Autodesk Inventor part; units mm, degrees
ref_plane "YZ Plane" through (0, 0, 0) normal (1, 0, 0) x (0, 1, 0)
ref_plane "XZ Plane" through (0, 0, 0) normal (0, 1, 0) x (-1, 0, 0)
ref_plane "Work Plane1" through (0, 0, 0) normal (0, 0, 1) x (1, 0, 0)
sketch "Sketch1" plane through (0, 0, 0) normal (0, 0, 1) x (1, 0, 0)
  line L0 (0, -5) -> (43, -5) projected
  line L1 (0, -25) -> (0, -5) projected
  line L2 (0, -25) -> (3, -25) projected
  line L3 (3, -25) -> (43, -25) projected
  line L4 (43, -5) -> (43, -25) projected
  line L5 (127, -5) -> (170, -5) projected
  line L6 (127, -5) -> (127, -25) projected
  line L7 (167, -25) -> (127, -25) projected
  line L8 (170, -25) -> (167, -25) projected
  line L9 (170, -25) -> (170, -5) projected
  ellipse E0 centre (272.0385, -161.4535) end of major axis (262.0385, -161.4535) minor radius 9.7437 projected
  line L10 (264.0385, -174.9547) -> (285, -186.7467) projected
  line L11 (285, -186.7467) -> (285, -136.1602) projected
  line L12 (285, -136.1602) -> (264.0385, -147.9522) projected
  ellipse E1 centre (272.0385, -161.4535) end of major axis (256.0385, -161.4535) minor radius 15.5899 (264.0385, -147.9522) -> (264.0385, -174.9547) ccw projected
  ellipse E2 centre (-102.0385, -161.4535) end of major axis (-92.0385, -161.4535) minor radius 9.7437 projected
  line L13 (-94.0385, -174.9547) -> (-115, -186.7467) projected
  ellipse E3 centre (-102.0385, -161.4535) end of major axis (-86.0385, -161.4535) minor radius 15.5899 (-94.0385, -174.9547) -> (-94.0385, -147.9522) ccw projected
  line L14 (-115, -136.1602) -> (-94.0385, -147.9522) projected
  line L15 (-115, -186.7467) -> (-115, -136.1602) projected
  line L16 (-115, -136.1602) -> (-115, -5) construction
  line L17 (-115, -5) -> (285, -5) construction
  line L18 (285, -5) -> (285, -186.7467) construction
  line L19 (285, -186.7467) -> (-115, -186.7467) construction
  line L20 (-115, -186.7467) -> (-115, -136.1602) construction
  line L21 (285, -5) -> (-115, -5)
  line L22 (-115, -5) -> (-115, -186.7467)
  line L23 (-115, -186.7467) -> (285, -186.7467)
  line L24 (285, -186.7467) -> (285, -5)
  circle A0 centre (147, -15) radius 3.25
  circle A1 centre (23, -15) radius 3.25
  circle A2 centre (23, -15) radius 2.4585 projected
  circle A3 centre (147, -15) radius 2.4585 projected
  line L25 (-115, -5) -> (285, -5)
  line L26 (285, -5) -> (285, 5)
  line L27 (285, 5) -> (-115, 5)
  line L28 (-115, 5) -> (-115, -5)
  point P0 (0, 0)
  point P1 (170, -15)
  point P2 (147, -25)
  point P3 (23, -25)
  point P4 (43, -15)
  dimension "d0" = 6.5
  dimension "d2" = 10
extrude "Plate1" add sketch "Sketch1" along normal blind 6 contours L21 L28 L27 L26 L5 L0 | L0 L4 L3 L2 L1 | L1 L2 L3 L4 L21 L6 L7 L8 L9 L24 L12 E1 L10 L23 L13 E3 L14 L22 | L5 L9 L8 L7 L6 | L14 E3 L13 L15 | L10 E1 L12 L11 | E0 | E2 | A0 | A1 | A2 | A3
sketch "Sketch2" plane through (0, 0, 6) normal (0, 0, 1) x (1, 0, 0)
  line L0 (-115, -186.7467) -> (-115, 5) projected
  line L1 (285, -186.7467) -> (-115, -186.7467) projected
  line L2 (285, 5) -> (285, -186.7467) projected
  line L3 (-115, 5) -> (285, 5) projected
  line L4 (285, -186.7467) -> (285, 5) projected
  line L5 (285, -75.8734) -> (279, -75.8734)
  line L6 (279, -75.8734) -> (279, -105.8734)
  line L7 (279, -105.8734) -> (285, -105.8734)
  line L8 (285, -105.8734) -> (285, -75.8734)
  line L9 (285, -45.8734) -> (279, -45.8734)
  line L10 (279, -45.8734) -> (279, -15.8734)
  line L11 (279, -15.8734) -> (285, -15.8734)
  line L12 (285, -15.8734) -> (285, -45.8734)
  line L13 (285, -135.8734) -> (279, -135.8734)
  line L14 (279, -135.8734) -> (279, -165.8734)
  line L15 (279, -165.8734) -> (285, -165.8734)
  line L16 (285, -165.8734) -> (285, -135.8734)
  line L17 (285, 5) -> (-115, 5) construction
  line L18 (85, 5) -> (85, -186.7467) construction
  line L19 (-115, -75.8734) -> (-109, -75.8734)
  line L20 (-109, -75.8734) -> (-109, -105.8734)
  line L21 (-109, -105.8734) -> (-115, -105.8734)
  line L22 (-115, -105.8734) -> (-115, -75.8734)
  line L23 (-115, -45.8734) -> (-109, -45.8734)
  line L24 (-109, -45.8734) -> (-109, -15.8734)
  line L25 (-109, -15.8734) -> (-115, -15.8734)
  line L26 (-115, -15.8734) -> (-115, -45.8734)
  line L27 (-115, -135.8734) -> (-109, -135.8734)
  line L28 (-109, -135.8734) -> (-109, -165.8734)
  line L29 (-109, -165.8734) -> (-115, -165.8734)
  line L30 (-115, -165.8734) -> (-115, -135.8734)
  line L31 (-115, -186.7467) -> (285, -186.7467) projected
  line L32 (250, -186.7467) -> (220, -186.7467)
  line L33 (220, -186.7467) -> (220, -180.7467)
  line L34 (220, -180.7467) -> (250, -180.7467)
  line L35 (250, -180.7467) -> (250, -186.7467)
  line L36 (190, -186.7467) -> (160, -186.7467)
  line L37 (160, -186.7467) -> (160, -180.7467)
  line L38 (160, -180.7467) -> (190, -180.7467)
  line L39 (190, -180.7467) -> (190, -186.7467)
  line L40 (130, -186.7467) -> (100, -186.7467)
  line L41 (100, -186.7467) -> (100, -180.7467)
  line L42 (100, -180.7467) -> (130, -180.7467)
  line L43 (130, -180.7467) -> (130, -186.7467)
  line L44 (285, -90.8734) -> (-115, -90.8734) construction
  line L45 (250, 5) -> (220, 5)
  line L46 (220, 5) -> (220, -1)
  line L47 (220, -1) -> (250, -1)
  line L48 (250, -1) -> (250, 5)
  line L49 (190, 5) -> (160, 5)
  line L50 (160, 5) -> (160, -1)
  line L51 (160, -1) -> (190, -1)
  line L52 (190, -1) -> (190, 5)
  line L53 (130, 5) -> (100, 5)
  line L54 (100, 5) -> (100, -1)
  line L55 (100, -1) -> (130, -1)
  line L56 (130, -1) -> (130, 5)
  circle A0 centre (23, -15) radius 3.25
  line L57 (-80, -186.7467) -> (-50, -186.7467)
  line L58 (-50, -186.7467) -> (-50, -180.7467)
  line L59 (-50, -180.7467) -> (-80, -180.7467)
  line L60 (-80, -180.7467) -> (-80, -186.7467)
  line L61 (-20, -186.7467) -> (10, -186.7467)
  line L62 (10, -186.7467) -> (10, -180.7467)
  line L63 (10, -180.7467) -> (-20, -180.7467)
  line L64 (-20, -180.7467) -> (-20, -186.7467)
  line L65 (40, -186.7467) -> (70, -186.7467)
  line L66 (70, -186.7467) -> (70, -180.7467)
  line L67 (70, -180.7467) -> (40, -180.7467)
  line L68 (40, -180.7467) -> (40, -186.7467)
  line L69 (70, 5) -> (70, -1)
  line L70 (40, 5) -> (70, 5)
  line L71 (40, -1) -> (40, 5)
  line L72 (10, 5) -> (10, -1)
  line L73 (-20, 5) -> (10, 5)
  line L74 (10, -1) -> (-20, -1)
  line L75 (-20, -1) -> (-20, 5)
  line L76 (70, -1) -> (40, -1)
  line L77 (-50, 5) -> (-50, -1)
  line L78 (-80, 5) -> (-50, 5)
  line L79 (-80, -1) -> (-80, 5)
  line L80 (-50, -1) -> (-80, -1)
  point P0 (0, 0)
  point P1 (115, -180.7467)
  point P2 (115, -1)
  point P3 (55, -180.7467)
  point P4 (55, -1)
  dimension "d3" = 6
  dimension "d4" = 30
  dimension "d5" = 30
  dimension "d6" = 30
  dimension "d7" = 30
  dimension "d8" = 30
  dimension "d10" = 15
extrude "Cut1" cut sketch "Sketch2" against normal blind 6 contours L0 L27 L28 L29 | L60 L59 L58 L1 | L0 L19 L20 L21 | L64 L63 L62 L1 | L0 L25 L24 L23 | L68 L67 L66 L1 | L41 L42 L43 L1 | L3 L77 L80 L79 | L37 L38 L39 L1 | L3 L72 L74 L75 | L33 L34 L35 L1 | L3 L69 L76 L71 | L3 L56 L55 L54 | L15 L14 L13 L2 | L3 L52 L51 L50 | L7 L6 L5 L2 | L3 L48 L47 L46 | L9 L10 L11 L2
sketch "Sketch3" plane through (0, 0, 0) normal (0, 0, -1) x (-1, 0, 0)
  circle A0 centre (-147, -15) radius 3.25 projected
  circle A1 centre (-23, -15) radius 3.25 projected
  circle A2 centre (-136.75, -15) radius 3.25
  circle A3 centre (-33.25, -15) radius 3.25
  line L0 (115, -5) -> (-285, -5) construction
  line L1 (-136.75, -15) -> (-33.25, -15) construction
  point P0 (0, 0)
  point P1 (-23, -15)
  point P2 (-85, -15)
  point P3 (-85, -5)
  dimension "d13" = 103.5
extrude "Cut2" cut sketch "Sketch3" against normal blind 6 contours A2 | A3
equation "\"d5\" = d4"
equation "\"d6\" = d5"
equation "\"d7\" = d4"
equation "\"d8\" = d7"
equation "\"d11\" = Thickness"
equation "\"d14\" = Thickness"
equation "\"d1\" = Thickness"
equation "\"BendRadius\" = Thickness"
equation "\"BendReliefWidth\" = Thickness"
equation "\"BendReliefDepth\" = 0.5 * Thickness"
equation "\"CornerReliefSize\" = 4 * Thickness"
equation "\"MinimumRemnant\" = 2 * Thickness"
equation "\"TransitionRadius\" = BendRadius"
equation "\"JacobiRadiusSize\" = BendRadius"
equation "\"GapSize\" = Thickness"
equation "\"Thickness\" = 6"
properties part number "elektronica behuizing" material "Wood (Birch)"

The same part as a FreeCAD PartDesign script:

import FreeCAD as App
import Part
import Sketcher

V = App.Vector


def add_polygon(sketch, points):
    """Adds a closed chain of lines whose ends are joined by coincident constraints."""
    first, n = sketch.GeometryCount, len(points)
    for a, b in zip(points, points[1:] + points[:1]):
        sketch.addGeometry(Part.LineSegment(App.Vector(*a, 0), App.Vector(*b, 0)), False)
    for i in range(n):
        sketch.addConstraint(Sketcher.Constraint("Coincident", first + i, 2, first + (i + 1) % n, 1))

doc = App.newDocument("Part")
body = doc.addObject("PartDesign::Body", "Body")

# Sketch on XY plane
sketch1 = doc.addObject("Sketcher::SketchObject", "Sketch")
body.addObject(sketch1)
sketch1.AttachmentSupport = (doc.XY_Plane, [""])
sketch1.MapMode = "FlatFace"
add_polygon(sketch1, [(-115, 5), (-115, -186.7467), (285, -186.7467), (285, 5)])  # lines 0-3
sketch1.addConstraint(Sketcher.Constraint("Vertical", 0))
sketch1.addConstraint(Sketcher.Constraint("Horizontal", 1))
sketch1.addConstraint(Sketcher.Constraint("Vertical", 2))
sketch1.addConstraint(Sketcher.Constraint("Horizontal", 3))
sketch1.addConstraint(Sketcher.Constraint("DistanceX", 1, 1, 1, 2, 400.0))
sketch1.addConstraint(Sketcher.Constraint("DistanceX", 0, 2, -1, 1, 115.0))
sketch1.addConstraint(Sketcher.Constraint("DistanceY", -1, 1, 2, 2, 5.0))
sketch1.addConstraint(Sketcher.Constraint("DistanceY", 0, 2, 0, 1, 191.7467))
pad1 = doc.addObject("PartDesign::Pad", "Pad")
body.addObject(pad1)
pad1.Profile = sketch1
pad1.Length = 6

# Sketch on XY plane
sketch2 = doc.addObject("Sketcher::SketchObject", "Sketch001")
body.addObject(sketch2)
sketch2.AttachmentSupport = (doc.XY_Plane, [""])
sketch2.MapMode = "FlatFace"
sketch2.AttachmentOffset = App.Placement(V(0, 0, 6), App.Rotation())
add_polygon(sketch2, [(-115, -135.8734), (-115, -165.8734), (-109, -165.8734), (-109, -135.8734)])  # lines 0-3
add_polygon(sketch2, [(-80, -180.7467), (-80, -186.7467), (-50, -186.7467), (-50, -180.7467)])  # lines 4-7
add_polygon(sketch2, [(-115, -75.8734), (-115, -105.8734), (-109, -105.8734), (-109, -75.8734)])  # lines 8-11
add_polygon(sketch2, [(-20, -180.7467), (-20, -186.7467), (10, -186.7467), (10, -180.7467)])  # lines 12-15
add_polygon(sketch2, [(-115, -15.8734), (-115, -45.8734), (-109, -45.8734), (-109, -15.8734)])  # lines 16-19
add_polygon(sketch2, [(40, -180.7467), (40, -186.7467), (70, -186.7467), (70, -180.7467)])  # lines 20-23
add_polygon(sketch2, [(100, -180.7467), (100, -186.7467), (130, -186.7467), (130, -180.7467)])  # lines 24-27
add_polygon(sketch2, [(-50, 5), (-80, 5), (-80, -1), (-50, -1)])  # lines 28-31
add_polygon(sketch2, [(160, -180.7467), (160, -186.7467), (190, -186.7467), (190, -180.7467)])  # lines 32-35
add_polygon(sketch2, [(10, 5), (-20, 5), (-20, -1), (10, -1)])  # lines 36-39
add_polygon(sketch2, [(220, -180.7467), (220, -186.7467), (250, -186.7467), (250, -180.7467)])  # lines 40-43
add_polygon(sketch2, [(70, 5), (40, 5), (40, -1), (70, -1)])  # lines 44-47
add_polygon(sketch2, [(130, 5), (100, 5), (100, -1), (130, -1)])  # lines 48-51
add_polygon(sketch2, [(279, -165.8734), (285, -165.8734), (285, -135.8734), (279, -135.8734)])  # lines 52-55
add_polygon(sketch2, [(190, 5), (160, 5), (160, -1), (190, -1)])  # lines 56-59
add_polygon(sketch2, [(279, -105.8734), (285, -105.8734), (285, -75.8734), (279, -75.8734)])  # lines 60-63
add_polygon(sketch2, [(250, 5), (220, 5), (220, -1), (250, -1)])  # lines 64-67
add_polygon(sketch2, [(279, -45.8734), (285, -45.8734), (285, -15.8734), (279, -15.8734)])  # lines 68-71
sketch2.addConstraint(Sketcher.Constraint("Vertical", 0))
sketch2.addConstraint(Sketcher.Constraint("Horizontal", 1))
sketch2.addConstraint(Sketcher.Constraint("Vertical", 2))
sketch2.addConstraint(Sketcher.Constraint("Horizontal", 3))
sketch2.addConstraint(Sketcher.Constraint("Vertical", 4))
sketch2.addConstraint(Sketcher.Constraint("Horizontal", 5))
sketch2.addConstraint(Sketcher.Constraint("Vertical", 6))
sketch2.addConstraint(Sketcher.Constraint("Horizontal", 7))
sketch2.addConstraint(Sketcher.Constraint("Vertical", 8))
sketch2.addConstraint(Sketcher.Constraint("Horizontal", 9))
sketch2.addConstraint(Sketcher.Constraint("Vertical", 10))
sketch2.addConstraint(Sketcher.Constraint("Horizontal", 11))
sketch2.addConstraint(Sketcher.Constraint("Vertical", 12))
sketch2.addConstraint(Sketcher.Constraint("Horizontal", 13))
sketch2.addConstraint(Sketcher.Constraint("Vertical", 14))
sketch2.addConstraint(Sketcher.Constraint("Horizontal", 15))
sketch2.addConstraint(Sketcher.Constraint("Vertical", 16))
sketch2.addConstraint(Sketcher.Constraint("Horizontal", 17))
sketch2.addConstraint(Sketcher.Constraint("Vertical", 18))
sketch2.addConstraint(Sketcher.Constraint("Horizontal", 19))
sketch2.addConstraint(Sketcher.Constraint("Vertical", 20))
sketch2.addConstraint(Sketcher.Constraint("Horizontal", 21))
sketch2.addConstraint(Sketcher.Constraint("Vertical", 22))
sketch2.addConstraint(Sketcher.Constraint("Horizontal", 23))
sketch2.addConstraint(Sketcher.Constraint("Vertical", 24))
sketch2.addConstraint(Sketcher.Constraint("Horizontal", 25))
sketch2.addConstraint(Sketcher.Constraint("Vertical", 26))
sketch2.addConstraint(Sketcher.Constraint("Horizontal", 27))
sketch2.addConstraint(Sketcher.Constraint("Horizontal", 28))
sketch2.addConstraint(Sketcher.Constraint("Vertical", 29))
sketch2.addConstraint(Sketcher.Constraint("Horizontal", 30))
sketch2.addConstraint(Sketcher.Constraint("Vertical", 31))
sketch2.addConstraint(Sketcher.Constraint("Vertical", 32))
sketch2.addConstraint(Sketcher.Constraint("Horizontal", 33))
sketch2.addConstraint(Sketcher.Constraint("Vertical", 34))
sketch2.addConstraint(Sketcher.Constraint("Horizontal", 35))
sketch2.addConstraint(Sketcher.Constraint("Horizontal", 36))
sketch2.addConstraint(Sketcher.Constraint("Vertical", 37))
sketch2.addConstraint(Sketcher.Constraint("Horizontal", 38))
sketch2.addConstraint(Sketcher.Constraint("Vertical", 39))
sketch2.addConstraint(Sketcher.Constraint("Vertical", 40))
sketch2.addConstraint(Sketcher.Constraint("Horizontal", 41))
sketch2.addConstraint(Sketcher.Constraint("Vertical", 42))
sketch2.addConstraint(Sketcher.Constraint("Horizontal", 43))
sketch2.addConstraint(Sketcher.Constraint("Horizontal", 44))
sketch2.addConstraint(Sketcher.Constraint("Vertical", 45))
sketch2.addConstraint(Sketcher.Constraint("Horizontal", 46))
sketch2.addConstraint(Sketcher.Constraint("Vertical", 47))
sketch2.addConstraint(Sketcher.Constraint("Horizontal", 48))
sketch2.addConstraint(Sketcher.Constraint("Vertical", 49))
sketch2.addConstraint(Sketcher.Constraint("Horizontal", 50))
sketch2.addConstraint(Sketcher.Constraint("Vertical", 51))
sketch2.addConstraint(Sketcher.Constraint("Horizontal", 52))
sketch2.addConstraint(Sketcher.Constraint("Vertical", 53))
sketch2.addConstraint(Sketcher.Constraint("Horizontal", 54))
sketch2.addConstraint(Sketcher.Constraint("Vertical", 55))
sketch2.addConstraint(Sketcher.Constraint("Horizontal", 56))
sketch2.addConstraint(Sketcher.Constraint("Vertical", 57))
sketch2.addConstraint(Sketcher.Constraint("Horizontal", 58))
sketch2.addConstraint(Sketcher.Constraint("Vertical", 59))
sketch2.addConstraint(Sketcher.Constraint("Horizontal", 60))
sketch2.addConstraint(Sketcher.Constraint("Vertical", 61))
sketch2.addConstraint(Sketcher.Constraint("Horizontal", 62))
sketch2.addConstraint(Sketcher.Constraint("Vertical", 63))
sketch2.addConstraint(Sketcher.Constraint("Horizontal", 64))
sketch2.addConstraint(Sketcher.Constraint("Vertical", 65))
sketch2.addConstraint(Sketcher.Constraint("Horizontal", 66))
sketch2.addConstraint(Sketcher.Constraint("Vertical", 67))
sketch2.addConstraint(Sketcher.Constraint("Horizontal", 68))
sketch2.addConstraint(Sketcher.Constraint("Vertical", 69))
sketch2.addConstraint(Sketcher.Constraint("Horizontal", 70))
sketch2.addConstraint(Sketcher.Constraint("Vertical", 71))
sketch2.addConstraint(Sketcher.Constraint("Horizontal", 5, 2, 12, 2))
sketch2.addConstraint(Sketcher.Constraint("Horizontal", 7, 2, 14, 2))
sketch2.addConstraint(Sketcher.Constraint("Horizontal", 13, 2, 20, 2))
sketch2.addConstraint(Sketcher.Constraint("Horizontal", 15, 2, 22, 2))
sketch2.addConstraint(Sketcher.Constraint("Horizontal", 21, 2, 24, 2))
sketch2.addConstraint(Sketcher.Constraint("Horizontal", 23, 2, 26, 2))
sketch2.addConstraint(Sketcher.Constraint("Horizontal", 25, 2, 32, 2))
sketch2.addConstraint(Sketcher.Constraint("Horizontal", 27, 2, 34, 2))
sketch2.addConstraint(Sketcher.Constraint("Horizontal", 31, 2, 36, 2))
sketch2.addConstraint(Sketcher.Constraint("Horizontal", 30, 2, 37, 2))
sketch2.addConstraint(Sketcher.Constraint("Horizontal", 33, 2, 40, 2))
sketch2.addConstraint(Sketcher.Constraint("Horizontal", 35, 2, 42, 2))
sketch2.addConstraint(Sketcher.Constraint("Horizontal", 39, 2, 44, 2))
sketch2.addConstraint(Sketcher.Constraint("Horizontal", 38, 2, 45, 2))
sketch2.addConstraint(Sketcher.Constraint("Horizontal", 47, 2, 48, 2))
sketch2.addConstraint(Sketcher.Constraint("Horizontal", 46, 2, 49, 2))
sketch2.addConstraint(Sketcher.Constraint("Horizontal", 1, 2, 52, 2))
sketch2.addConstraint(Sketcher.Constraint("Horizontal", 3, 2, 53, 2))
sketch2.addConstraint(Sketcher.Constraint("Horizontal", 51, 2, 56, 2))
sketch2.addConstraint(Sketcher.Constraint("Horizontal", 50, 2, 57, 2))
sketch2.addConstraint(Sketcher.Constraint("Horizontal", 9, 2, 60, 2))
sketch2.addConstraint(Sketcher.Constraint("Horizontal", 11, 2, 61, 2))
sketch2.addConstraint(Sketcher.Constraint("Horizontal", 59, 2, 64, 2))
sketch2.addConstraint(Sketcher.Constraint("Horizontal", 58, 2, 65, 2))
sketch2.addConstraint(Sketcher.Constraint("Horizontal", 17, 2, 68, 2))
sketch2.addConstraint(Sketcher.Constraint("Horizontal", 19, 2, 69, 2))
sketch2.addConstraint(Sketcher.Constraint("Vertical", 3, 2, 8, 2))
sketch2.addConstraint(Sketcher.Constraint("Vertical", 2, 2, 9, 2))
sketch2.addConstraint(Sketcher.Constraint("Vertical", 11, 2, 16, 2))
sketch2.addConstraint(Sketcher.Constraint("Vertical", 10, 2, 17, 2))
sketch2.addConstraint(Sketcher.Constraint("Vertical", 7, 2, 28, 2))
sketch2.addConstraint(Sketcher.Constraint("Vertical", 6, 2, 30, 2))
sketch2.addConstraint(Sketcher.Constraint("Vertical", 15, 2, 36, 2))
sketch2.addConstraint(Sketcher.Constraint("Vertical", 14, 2, 38, 2))
sketch2.addConstraint(Sketcher.Constraint("Vertical", 23, 2, 44, 2))
sketch2.addConstraint(Sketcher.Constraint("Vertical", 22, 2, 46, 2))
sketch2.addConstraint(Sketcher.Constraint("Vertical", 27, 2, 48, 2))
sketch2.addConstraint(Sketcher.Constraint("Vertical", 26, 2, 50, 2))
sketch2.addConstraint(Sketcher.Constraint("Vertical", 35, 2, 56, 2))
sketch2.addConstraint(Sketcher.Constraint("Vertical", 34, 2, 58, 2))
sketch2.addConstraint(Sketcher.Constraint("Vertical", 53, 2, 60, 2))
sketch2.addConstraint(Sketcher.Constraint("Vertical", 55, 2, 62, 2))
sketch2.addConstraint(Sketcher.Constraint("Vertical", 43, 2, 64, 2))
sketch2.addConstraint(Sketcher.Constraint("Vertical", 42, 2, 66, 2))
sketch2.addConstraint(Sketcher.Constraint("Vertical", 61, 2, 68, 2))
sketch2.addConstraint(Sketcher.Constraint("Vertical", 63, 2, 70, 2))
sketch2.addConstraint(Sketcher.Constraint("Equal", 7, 13))
sketch2.addConstraint(Sketcher.Constraint("Equal", 15, 21))
sketch2.addConstraint(Sketcher.Constraint("Equal", 23, 25))
sketch2.addConstraint(Sketcher.Constraint("Equal", 30, 33))
sketch2.addConstraint(Sketcher.Constraint("Equal", 38, 41))
sketch2.addConstraint(Sketcher.Constraint("Equal", 19, 52))
sketch2.addConstraint(Sketcher.Constraint("Equal", 66, 0))
sketch2.addConstraint(Sketcher.Constraint("Equal", 70, 4))
sketch2.addConstraint(Sketcher.Constraint("Equal", 2, 8))
sketch2.addConstraint(Sketcher.Constraint("Equal", 10, 16))
sketch2.addConstraint(Sketcher.Constraint("Equal", 26, 29))
sketch2.addConstraint(Sketcher.Constraint("DistanceX", 1, 1, 1, 2, 6.0))
sketch2.addConstraint(Sketcher.Constraint("DistanceX", 5, 1, 5, 2, 30.0))
sketch2.addConstraint(Sketcher.Constraint("DistanceX", 0, 2, -1, 1, 115.0))
sketch2.addConstraint(Sketcher.Constraint("DistanceX", 4, 2, -1, 1, 80.0))
sketch2.addConstraint(Sketcher.Constraint("DistanceX", 12, 2, -1, 1, 20.0))
sketch2.addConstraint(Sketcher.Constraint("DistanceX", -1, 1, 20, 2, 40.0))
sketch2.addConstraint(Sketcher.Constraint("DistanceX", -1, 1, 24, 2, 100.0))
sketch2.addConstraint(Sketcher.Constraint("DistanceY", -1, 1, 28, 2, 5.0))
sketch2.addConstraint(Sketcher.Constraint("DistanceX", -1, 1, 32, 2, 160.0))
sketch2.addConstraint(Sketcher.Constraint("DistanceX", -1, 1, 40, 2, 220.0))
sketch2.addConstraint(Sketcher.Constraint("DistanceX", -1, 1, 52, 2, 285.0))
sketch2.addConstraint(Sketcher.Constraint("DistanceY", 0, 2, -1, 1, 165.8734))
sketch2.addConstraint(Sketcher.Constraint("DistanceY", 4, 2, -1, 1, 186.7467))
sketch2.addConstraint(Sketcher.Constraint("DistanceY", 8, 2, -1, 1, 105.8734))
sketch2.addConstraint(Sketcher.Constraint("DistanceY", 16, 2, -1, 1, 45.8734))
pocket1 = doc.addObject("PartDesign::Pocket", "Pocket")
body.addObject(pocket1)
pocket1.Profile = sketch2
pocket1.Length = 6

# Sketch on XY plane
sketch3 = doc.addObject("Sketcher::SketchObject", "Sketch002")
body.addObject(sketch3)
sketch3.AttachmentSupport = (doc.XY_Plane, [""])
sketch3.MapMode = "FlatFace"
sketch3.addGeometry(Part.Circle(V(136.75, -15, 0), V(0, 0, 1), 3.25), False)
sketch3.addGeometry(Part.Circle(V(33.25, -15, 0), V(0, 0, 1), 3.25), False)
sketch3.addConstraint(Sketcher.Constraint("Equal", 0, 1))
sketch3.addConstraint(Sketcher.Constraint("Horizontal", 0, 3, 1, 3))
sketch3.addConstraint(Sketcher.Constraint("Diameter", 0, 6.5))
sketch3.addConstraint(Sketcher.Constraint("DistanceX", 1, 3, 0, 3, 103.5))
sketch3.addConstraint(Sketcher.Constraint("DistanceY", 0, 3, -1, 1, 15.0))
sketch3.addConstraint(Sketcher.Constraint("DistanceX", -1, 1, 0, 3, 136.75))
pocket2 = doc.addObject("PartDesign::Pocket", "Pocket001")
body.addObject(pocket2)
pocket2.Profile = sketch3
pocket2.Length = 6
pocket2.Reversed = True

doc.recompute()
